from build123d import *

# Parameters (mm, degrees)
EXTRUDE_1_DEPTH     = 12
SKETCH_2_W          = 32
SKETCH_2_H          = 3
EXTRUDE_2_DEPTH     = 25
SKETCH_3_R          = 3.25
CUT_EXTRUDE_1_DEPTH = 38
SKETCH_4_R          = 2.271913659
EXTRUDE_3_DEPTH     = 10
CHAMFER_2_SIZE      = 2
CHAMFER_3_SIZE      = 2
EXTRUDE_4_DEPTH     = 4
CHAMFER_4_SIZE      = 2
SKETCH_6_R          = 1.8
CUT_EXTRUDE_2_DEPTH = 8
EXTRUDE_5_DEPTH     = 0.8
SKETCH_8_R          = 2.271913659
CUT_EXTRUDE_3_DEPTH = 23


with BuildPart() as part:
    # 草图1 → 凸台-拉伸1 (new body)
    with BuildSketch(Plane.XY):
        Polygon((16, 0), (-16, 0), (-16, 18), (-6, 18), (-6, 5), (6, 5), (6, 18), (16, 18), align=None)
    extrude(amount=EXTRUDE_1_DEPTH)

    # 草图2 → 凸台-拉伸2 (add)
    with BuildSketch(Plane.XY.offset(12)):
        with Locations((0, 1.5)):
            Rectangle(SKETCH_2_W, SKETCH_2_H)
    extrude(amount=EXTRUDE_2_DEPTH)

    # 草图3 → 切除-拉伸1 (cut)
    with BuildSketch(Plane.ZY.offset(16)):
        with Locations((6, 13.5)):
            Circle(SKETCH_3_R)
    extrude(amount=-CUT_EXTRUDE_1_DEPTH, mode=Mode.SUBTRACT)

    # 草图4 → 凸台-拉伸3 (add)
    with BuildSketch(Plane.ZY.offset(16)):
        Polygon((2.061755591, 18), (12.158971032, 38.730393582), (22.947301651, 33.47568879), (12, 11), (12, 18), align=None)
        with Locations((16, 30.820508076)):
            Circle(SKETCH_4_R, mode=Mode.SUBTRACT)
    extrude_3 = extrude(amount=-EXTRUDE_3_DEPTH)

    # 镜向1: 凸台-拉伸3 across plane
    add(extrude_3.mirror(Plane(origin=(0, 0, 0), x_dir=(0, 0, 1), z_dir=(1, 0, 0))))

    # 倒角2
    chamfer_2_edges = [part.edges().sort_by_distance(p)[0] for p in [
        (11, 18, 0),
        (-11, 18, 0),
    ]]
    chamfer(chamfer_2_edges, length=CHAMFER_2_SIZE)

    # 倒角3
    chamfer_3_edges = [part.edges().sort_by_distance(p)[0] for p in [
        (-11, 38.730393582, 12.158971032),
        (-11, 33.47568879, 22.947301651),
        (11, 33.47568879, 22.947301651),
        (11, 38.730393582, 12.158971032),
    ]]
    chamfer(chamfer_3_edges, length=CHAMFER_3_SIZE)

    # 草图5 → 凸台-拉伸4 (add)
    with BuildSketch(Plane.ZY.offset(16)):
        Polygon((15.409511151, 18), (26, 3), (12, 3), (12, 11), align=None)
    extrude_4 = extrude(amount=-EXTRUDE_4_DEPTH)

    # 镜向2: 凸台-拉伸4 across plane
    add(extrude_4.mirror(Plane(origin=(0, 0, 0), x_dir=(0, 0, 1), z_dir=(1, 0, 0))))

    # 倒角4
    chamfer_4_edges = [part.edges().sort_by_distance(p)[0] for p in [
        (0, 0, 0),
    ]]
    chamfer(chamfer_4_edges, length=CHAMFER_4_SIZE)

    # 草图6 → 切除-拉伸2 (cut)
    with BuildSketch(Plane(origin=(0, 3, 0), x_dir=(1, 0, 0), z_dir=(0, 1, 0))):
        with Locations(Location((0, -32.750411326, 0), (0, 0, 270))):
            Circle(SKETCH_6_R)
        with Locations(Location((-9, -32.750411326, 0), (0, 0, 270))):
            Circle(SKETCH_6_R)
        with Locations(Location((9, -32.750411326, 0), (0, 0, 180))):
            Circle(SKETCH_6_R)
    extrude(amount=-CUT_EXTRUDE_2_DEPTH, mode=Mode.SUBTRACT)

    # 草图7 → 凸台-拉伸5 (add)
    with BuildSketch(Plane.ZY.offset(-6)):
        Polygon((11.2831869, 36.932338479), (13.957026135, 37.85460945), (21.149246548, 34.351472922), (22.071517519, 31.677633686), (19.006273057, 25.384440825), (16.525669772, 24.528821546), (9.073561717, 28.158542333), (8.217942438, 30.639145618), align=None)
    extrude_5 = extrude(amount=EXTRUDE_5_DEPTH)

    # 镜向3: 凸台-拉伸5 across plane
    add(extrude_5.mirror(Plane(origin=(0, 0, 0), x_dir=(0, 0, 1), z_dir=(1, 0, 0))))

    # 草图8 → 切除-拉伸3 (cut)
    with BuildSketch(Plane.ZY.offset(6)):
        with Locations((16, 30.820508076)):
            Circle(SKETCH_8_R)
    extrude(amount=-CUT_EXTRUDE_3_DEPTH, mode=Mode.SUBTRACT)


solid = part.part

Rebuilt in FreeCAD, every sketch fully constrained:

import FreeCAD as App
import Part
import Sketcher

V = App.Vector
Q = App.Units.Quantity


def edges_at(feature, points):
    """Names of the edges that pass closest to the given points."""
    edges = feature.Shape.Edges
    near = lambda p: min(range(len(edges)), key=lambda i: edges[i].distToShape(Part.Vertex(*p))[0])
    return sorted({f"Edge{near(p) + 1}" for p in points})

doc = App.newDocument("Part")
body = doc.addObject("PartDesign::Body", "Body")

# Sketch on XY plane
sketch1 = doc.addObject("Sketcher::SketchObject", "Sketch")
body.addObject(sketch1)
sketch1.AttachmentSupport = (doc.XY_Plane, [""])
sketch1.MapMode = "FlatFace"
sketch1.addGeometry([
    Part.LineSegment(V(-16, 0, 0), V(16, 0, 0)),  # 0
    Part.LineSegment(V(16, 0, 0), V(16, 18, 0)),  # 1
    Part.LineSegment(V(16, 18, 0), V(6, 18, 0)),  # 2
    Part.LineSegment(V(6, 18, 0), V(6, 5, 0)),  # 3
    Part.LineSegment(V(6, 5, 0), V(-6, 5, 0)),  # 4
    Part.LineSegment(V(-6, 5, 0), V(-6, 18, 0)),  # 5
    Part.LineSegment(V(-6, 18, 0), V(-16, 18, 0)),  # 6
    Part.LineSegment(V(-16, 18, 0), V(-16, 0, 0)),  # 7
], False)
sketch1.addConstraint([
    Sketcher.Constraint("Coincident", 0, 2, 1, 1),
    Sketcher.Constraint("Coincident", 1, 2, 2, 1),
    Sketcher.Constraint("Coincident", 2, 2, 3, 1),
    Sketcher.Constraint("Coincident", 3, 2, 4, 1),
    Sketcher.Constraint("Coincident", 4, 2, 5, 1),
    Sketcher.Constraint("Coincident", 5, 2, 6, 1),
    Sketcher.Constraint("Coincident", 6, 2, 7, 1),
    Sketcher.Constraint("Coincident", 7, 2, 0, 1),
    Sketcher.Constraint("Horizontal", 0),
    Sketcher.Constraint("Vertical", 1),
    Sketcher.Constraint("Horizontal", 2),
    Sketcher.Constraint("Vertical", 3),
    Sketcher.Constraint("Horizontal", 4),
    Sketcher.Constraint("Vertical", 5),
    Sketcher.Constraint("Horizontal", 6),
    Sketcher.Constraint("Vertical", 7),
    Sketcher.Constraint("Symmetric", 0, 2, 7, 2, -1, 1),
    Sketcher.Constraint("Symmetric", 2, 2, 5, 2, -2),
    Sketcher.Constraint("DistanceX", 0, 1, 0, 2, Q("32 mm")),
    Sketcher.Constraint("DistanceX", 2, 2, 2, 1, Q("10 mm")),
    Sketcher.Constraint("DistanceY", 1, 1, 1, 2, Q("18 mm")),
    Sketcher.Constraint("DistanceY", 3, 2, 3, 1, Q("13 mm")),
])
pad1 = doc.addObject("PartDesign::Pad", "Pad")
body.addObject(pad1)
pad1.Profile = sketch1
pad1.Length = 12

# Sketch on XY plane
sketch2 = doc.addObject("Sketcher::SketchObject", "Sketch001")
body.addObject(sketch2)
sketch2.AttachmentSupport = (doc.XY_Plane, [""])
sketch2.MapMode = "FlatFace"
sketch2.AttachmentOffset = App.Placement(V(0, 0, 12), App.Rotation())
sketch2.addGeometry([
    Part.LineSegment(V(-16, 3, 0), V(-16, 0, 0)),
    Part.LineSegment(V(-16, 0, 0), V(16, 0, 0)),
    Part.LineSegment(V(16, 0, 0), V(16, 3, 0)),
    Part.LineSegment(V(16, 3, 0), V(-16, 3, 0)),
], False)
sketch2.addConstraint([
    Sketcher.Constraint("Coincident", 0, 2, 1, 1),
    Sketcher.Constraint("Coincident", 1, 2, 2, 1),
    Sketcher.Constraint("Coincident", 2, 2, 3, 1),
    Sketcher.Constraint("Coincident", 3, 2, 0, 1),
    Sketcher.Constraint("Vertical", 0),
    Sketcher.Constraint("Horizontal", 1),
    Sketcher.Constraint("Vertical", 2),
    Sketcher.Constraint("Horizontal", 3),
    Sketcher.Constraint("Symmetric", 0, 2, 1, 2, -1, 1),
    Sketcher.Constraint("DistanceX", 1, 1, 1, 2, Q("32 mm")),
    Sketcher.Constraint("DistanceY", 0, 2, 0, 1, Q("3 mm")),
])
pad2 = doc.addObject("PartDesign::Pad", "Pad001")
body.addObject(pad2)
pad2.Profile = sketch2
pad2.Length = 25

# Sketch on YZ plane
sketch3 = doc.addObject("Sketcher::SketchObject", "Sketch002")
body.addObject(sketch3)
sketch3.AttachmentSupport = (doc.YZ_Plane, [""])
sketch3.MapMode = "FlatFace"
sketch3.AttachmentOffset = App.Placement(V(0, 0, -16), App.Rotation())
sketch3.addGeometry(Part.Circle(V(13.5, 6, 0), V(0, 0, 1), 3.2), False)
sketch3.addConstraint([
    Sketcher.Constraint("Diameter", 0, Q("6.5 mm")),
    Sketcher.Constraint("DistanceY", -1, 1, 0, 3, Q("6 mm")),
    Sketcher.Constraint("DistanceX", -1, 1, 0, 3, Q("13.5 mm")),
])
pocket1 = doc.addObject("PartDesign::Pocket", "Pocket")
body.addObject(pocket1)
pocket1.Profile = sketch3
pocket1.Length = 38
pocket1.Reversed = True

# Sketch on YZ plane
sketch4 = doc.addObject("Sketcher::SketchObject", "Sketch003")
body.addObject(sketch4)
sketch4.AttachmentSupport = (doc.YZ_Plane, [""])
sketch4.MapMode = "FlatFace"
sketch4.AttachmentOffset = App.Placement(V(0, 0, -16), App.Rotation())
sketch4.addGeometry([
    Part.LineSegment(V(38.7, 12.2, 0), V(18, 2.1, 0)),  # 0
    Part.LineSegment(V(18, 2.1, 0), V(18, 12, 0)),  # 1
    Part.LineSegment(V(18, 12, 0), V(11, 12, 0)),  # 2
    Part.LineSegment(V(11, 12, 0), V(33.5, 22.9, 0)),  # 3
    Part.LineSegment(V(33.5, 22.9, 0), V(38.7, 12.2, 0)),  # 4
    Part.Circle(V(30.8, 16, 0), V(0, 0, 1), 2.3),  # 5
], False)
sketch4.addConstraint([
    Sketcher.Constraint("Coincident", 0, 2, 1, 1),
    Sketcher.Constraint("Coincident", 1, 2, 2, 1),
    Sketcher.Constraint("Coincident", 2, 2, 3, 1),
    Sketcher.Constraint("Coincident", 3, 2, 4, 1),
    Sketcher.Constraint("Coincident", 4, 2, 0, 1),
    Sketcher.Constraint("Vertical", 1),
    Sketcher.Constraint("Horizontal", 2),
    Sketcher.Constraint("Parallel", 0, 3),
    Sketcher.Constraint("Perpendicular", 3, 4),
    Sketcher.Constraint("DistanceX", 2, 2, 2, 1, Q("7 mm")),
    Sketcher.Constraint("Distance", 3, Q("25 mm")),
    Sketcher.Constraint("Distance", 4, Q("12 mm")),
    Sketcher.Constraint("DistanceY", -1, 1, 5, 3, Q("16 mm")),
    Sketcher.Constraint("DistanceX", -1, 1, 0, 2, Q("18 mm")),
    Sketcher.Constraint("DistanceY", -1, 1, 1, 2, Q("12 mm")),
    Sketcher.Constraint("Diameter", 5, Q("4.543827 mm")),
    Sketcher.Constraint("DistanceY", -1, 1, 3, 2, Q("22.947302 mm")),
    Sketcher.Constraint("DistanceX", -1, 1, 5, 3, Q("30.820508 mm")),
])
pad3 = doc.addObject("PartDesign::Pad", "Pad002")
body.addObject(pad3)
pad3.Profile = sketch4
pad3.Length = 10
doc.recompute()

mirrored = doc.addObject("PartDesign::Mirrored", "Mirrored")
body.addObject(mirrored)
mirrored.Originals = [pad3]
mirrored.MirrorPlane = (doc.YZ_Plane, [""])
body.Tip = mirrored
doc.recompute()

chamfer = doc.addObject("PartDesign::Chamfer", "Chamfer")
body.addObject(chamfer)
chamfer.Base = (mirrored, edges_at(mirrored, [(11, 18, 0), (-11, 18, 0)]))
chamfer.Size = 2
doc.recompute()

chamfer2 = doc.addObject("PartDesign::Chamfer", "Chamfer001")
body.addObject(chamfer2)
chamfer2.Base = (chamfer, edges_at(chamfer, [
    (-11, 38.73, 12.159),
    (-11, 33.476, 22.947),
    (11, 33.476, 22.947),
    (11, 38.73, 12.159),
]))
chamfer2.Size = 2

# Sketch on YZ plane
sketch5 = doc.addObject("Sketcher::SketchObject", "Sketch004")
body.addObject(sketch5)
sketch5.AttachmentSupport = (doc.YZ_Plane, [""])
sketch5.MapMode = "FlatFace"
sketch5.AttachmentOffset = App.Placement(V(0, 0, -16), App.Rotation())
sketch5.addGeometry([
    Part.LineSegment(V(3, 26, 0), V(18, 15, 0)),
    Part.LineSegment(V(18, 15, 0), V(11, 12, 0)),
    Part.LineSegment(V(11, 12, 0), V(3, 12, 0)),
    Part.LineSegment(V(3, 12, 0), V(3, 26, 0)),
], False)
sketch5.addConstraint([
    Sketcher.Constraint("Coincident", 0, 2, 1, 1),
    Sketcher.Constraint("Coincident", 1, 2, 2, 1),
    Sketcher.Constraint("Coincident", 2, 2, 3, 1),
    Sketcher.Constraint("Coincident", 3, 2, 0, 1),
    Sketcher.Constraint("Horizontal", 2),
    Sketcher.Constraint("Vertical", 3),
    Sketcher.Constraint("DistanceX", 2, 2, 2, 1, Q("8 mm")),
    Sketcher.Constraint("DistanceY", 3, 1, 3, 2, Q("14 mm")),
    Sketcher.Constraint("DistanceX", -1, 1, 0, 2, Q("18 mm")),
    Sketcher.Constraint("DistanceX", -1, 1, 1, 2, Q("11 mm")),
    Sketcher.Constraint("DistanceY", -1, 1, 1, 2, Q("12 mm")),
    Sketcher.Constraint("Distance", 1, Q("7.786191 mm")),
])
pad4 = doc.addObject("PartDesign::Pad", "Pad003")
body.addObject(pad4)
pad4.Profile = sketch5
pad4.Length = 4
doc.recompute()

mirrored2 = doc.addObject("PartDesign::Mirrored", "Mirrored001")
body.addObject(mirrored2)
mirrored2.Originals = [pad4]
mirrored2.MirrorPlane = (doc.YZ_Plane, [""])
body.Tip = mirrored2
doc.recompute()

chamfer3 = doc.addObject("PartDesign::Chamfer", "Chamfer002")
body.addObject(chamfer3)
chamfer3.Base = (mirrored2, edges_at(mirrored2, [(0, 0, 0)]))
chamfer3.Size = 2

# Sketch on XZ plane
sketch6 = doc.addObject("Sketcher::SketchObject", "Sketch005")
body.addObject(sketch6)
sketch6.AttachmentSupport = (doc.XZ_Plane, [""])
sketch6.MapMode = "FlatFace"
sketch6.AttachmentOffset = App.Placement(V(0, 0, -3), App.Rotation())
sketch6.addGeometry([
    Part.Circle(V(0, 32.8, 0), V(0, 0, 1), 1.8),
    Part.Circle(V(-9, 32.8, 0), V(0, 0, 1), 1.8),
    Part.Circle(V(9, 32.8, 0), V(0, 0, 1), 1.8),
], False)
sketch6.addConstraint([
    Sketcher.Constraint("Equal", 0, 1),
    Sketcher.Constraint("Equal", 1, 2),
    Sketcher.Constraint("Symmetric", 1, 3, 2, 3, -2),
    Sketcher.Constraint("PointOnObject", 0, 3, -2),
    Sketcher.Constraint("Horizontal", 0, 3, 1, 3),
    Sketcher.Constraint("Diameter", 0, Q("3.6 mm")),
    Sketcher.Constraint("DistanceX", 1, 3, -1, 1, Q("9 mm")),
    Sketcher.Constraint("DistanceY", -1, 1, 0, 3, Q("32.750411 mm")),
])
pocket2 = doc.addObject("PartDesign::Pocket", "Pocket001")
body.addObject(pocket2)
pocket2.Profile = sketch6
pocket2.Length = 8
pocket2.Reversed = True

# Sketch on YZ plane
sketch7 = doc.addObject("Sketcher::SketchObject", "Sketch006")
body.addObject(sketch7)
sketch7.AttachmentSupport = (doc.YZ_Plane, [""])
sketch7.MapMode = "FlatFace"
sketch7.AttachmentOffset = App.Placement(V(0, 0, 6), App.Rotation())
sketch7.addGeometry([
    Part.LineSegment(V(37.9, 14, 0), V(36.9, 11.3, 0)),  # 0
    Part.LineSegment(V(36.9, 11.3, 0), V(30.6, 8.2, 0)),  # 1
    Part.LineSegment(V(30.6, 8.2, 0), V(28.2, 9.1, 0)),  # 2
    Part.LineSegment(V(28.2, 9.1, 0), V(24.5, 16.5, 0)),  # 3
    Part.LineSegment(V(24.5, 16.5, 0), V(25.4, 19, 0)),  # 4
    Part.LineSegment(V(25.4, 19, 0), V(31.7, 22.1, 0)),  # 5
    Part.LineSegment(V(31.7, 22.1, 0), V(34.4, 21.1, 0)),  # 6
    Part.LineSegment(V(34.4, 21.1, 0), V(37.9, 14, 0)),  # 7
], False)
sketch7.addConstraint([
    Sketcher.Constraint("Coincident", 0, 2, 1, 1),
    Sketcher.Constraint("Coincident", 1, 2, 2, 1),
    Sketcher.Constraint("Coincident", 2, 2, 3, 1),
    Sketcher.Constraint("Coincident", 3, 2, 4, 1),
    Sketcher.Constraint("Coincident", 4, 2, 5, 1),
    Sketcher.Constraint("Coincident", 5, 2, 6, 1),
    Sketcher.Constraint("Coincident", 6, 2, 7, 1),
    Sketcher.Constraint("Coincident", 7, 2, 0, 1),
    Sketcher.Constraint("Perpendicular", 0, 2),
    Sketcher.Constraint("Perpendicular", 1, 3),
    Sketcher.Constraint("Perpendicular", 2, 4),
    Sketcher.Constraint("Perpendicular", 3, 5),
    Sketcher.Constraint("Perpendicular", 4, 6),
    Sketcher.Constraint("Perpendicular", 5, 7),
    Sketcher.Constraint("Equal", 2, 4),
    Sketcher.Constraint("Equal", 1, 5),
    Sketcher.Constraint("Equal", 0, 6),
    Sketcher.Constraint("Distance", 1, Q("7 mm")),
    Sketcher.Constraint("Distance", 7, Q("8 mm")),
    Sketcher.Constraint("DistanceX", 4, 2, 2, 2, Q("2.774102 mm")),
    Sketcher.Constraint("Distance", 2, Q("2.624019 mm")),
    Sketcher.Constraint("DistanceX", -1, 1, 0, 2, Q("36.932338 mm")),
    Sketcher.Constraint("DistanceY", -1, 1, 2, 2, Q("9.073562 mm")),
    Sketcher.Constraint("DistanceX", -1, 1, 3, 2, Q("24.528822 mm")),
])
pad5 = doc.addObject("PartDesign::Pad", "Pad004")
body.addObject(pad5)
pad5.Profile = sketch7
pad5.Length = 0.8
pad5.Reversed = True
doc.recompute()

mirrored3 = doc.addObject("PartDesign::Mirrored", "Mirrored002")
body.addObject(mirrored3)
mirrored3.Originals = [pad5]
mirrored3.MirrorPlane = (doc.YZ_Plane, [""])
body.Tip = mirrored3

# Sketch on YZ plane
sketch8 = doc.addObject("Sketcher::SketchObject", "Sketch007")
body.addObject(sketch8)
sketch8.AttachmentSupport = (doc.YZ_Plane, [""])
sketch8.MapMode = "FlatFace"
sketch8.AttachmentOffset = App.Placement(V(0, 0, -6), App.Rotation())
sketch8.addGeometry(Part.Circle(V(30.8, 16, 0), V(0, 0, 1), 2.3), False)
sketch8.addConstraint([
    Sketcher.Constraint("DistanceY", -1, 1, 0, 3, Q("16 mm")),
    Sketcher.Constraint("Diameter", 0, Q("4.543827 mm")),
    Sketcher.Constraint("DistanceX", -1, 1, 0, 3, Q("30.820508 mm")),
])
pocket3 = doc.addObject("PartDesign::Pocket", "Pocket002")
body.addObject(pocket3)
pocket3.Profile = sketch8
pocket3.Length = 23
pocket3.Reversed = True

doc.recompute()
